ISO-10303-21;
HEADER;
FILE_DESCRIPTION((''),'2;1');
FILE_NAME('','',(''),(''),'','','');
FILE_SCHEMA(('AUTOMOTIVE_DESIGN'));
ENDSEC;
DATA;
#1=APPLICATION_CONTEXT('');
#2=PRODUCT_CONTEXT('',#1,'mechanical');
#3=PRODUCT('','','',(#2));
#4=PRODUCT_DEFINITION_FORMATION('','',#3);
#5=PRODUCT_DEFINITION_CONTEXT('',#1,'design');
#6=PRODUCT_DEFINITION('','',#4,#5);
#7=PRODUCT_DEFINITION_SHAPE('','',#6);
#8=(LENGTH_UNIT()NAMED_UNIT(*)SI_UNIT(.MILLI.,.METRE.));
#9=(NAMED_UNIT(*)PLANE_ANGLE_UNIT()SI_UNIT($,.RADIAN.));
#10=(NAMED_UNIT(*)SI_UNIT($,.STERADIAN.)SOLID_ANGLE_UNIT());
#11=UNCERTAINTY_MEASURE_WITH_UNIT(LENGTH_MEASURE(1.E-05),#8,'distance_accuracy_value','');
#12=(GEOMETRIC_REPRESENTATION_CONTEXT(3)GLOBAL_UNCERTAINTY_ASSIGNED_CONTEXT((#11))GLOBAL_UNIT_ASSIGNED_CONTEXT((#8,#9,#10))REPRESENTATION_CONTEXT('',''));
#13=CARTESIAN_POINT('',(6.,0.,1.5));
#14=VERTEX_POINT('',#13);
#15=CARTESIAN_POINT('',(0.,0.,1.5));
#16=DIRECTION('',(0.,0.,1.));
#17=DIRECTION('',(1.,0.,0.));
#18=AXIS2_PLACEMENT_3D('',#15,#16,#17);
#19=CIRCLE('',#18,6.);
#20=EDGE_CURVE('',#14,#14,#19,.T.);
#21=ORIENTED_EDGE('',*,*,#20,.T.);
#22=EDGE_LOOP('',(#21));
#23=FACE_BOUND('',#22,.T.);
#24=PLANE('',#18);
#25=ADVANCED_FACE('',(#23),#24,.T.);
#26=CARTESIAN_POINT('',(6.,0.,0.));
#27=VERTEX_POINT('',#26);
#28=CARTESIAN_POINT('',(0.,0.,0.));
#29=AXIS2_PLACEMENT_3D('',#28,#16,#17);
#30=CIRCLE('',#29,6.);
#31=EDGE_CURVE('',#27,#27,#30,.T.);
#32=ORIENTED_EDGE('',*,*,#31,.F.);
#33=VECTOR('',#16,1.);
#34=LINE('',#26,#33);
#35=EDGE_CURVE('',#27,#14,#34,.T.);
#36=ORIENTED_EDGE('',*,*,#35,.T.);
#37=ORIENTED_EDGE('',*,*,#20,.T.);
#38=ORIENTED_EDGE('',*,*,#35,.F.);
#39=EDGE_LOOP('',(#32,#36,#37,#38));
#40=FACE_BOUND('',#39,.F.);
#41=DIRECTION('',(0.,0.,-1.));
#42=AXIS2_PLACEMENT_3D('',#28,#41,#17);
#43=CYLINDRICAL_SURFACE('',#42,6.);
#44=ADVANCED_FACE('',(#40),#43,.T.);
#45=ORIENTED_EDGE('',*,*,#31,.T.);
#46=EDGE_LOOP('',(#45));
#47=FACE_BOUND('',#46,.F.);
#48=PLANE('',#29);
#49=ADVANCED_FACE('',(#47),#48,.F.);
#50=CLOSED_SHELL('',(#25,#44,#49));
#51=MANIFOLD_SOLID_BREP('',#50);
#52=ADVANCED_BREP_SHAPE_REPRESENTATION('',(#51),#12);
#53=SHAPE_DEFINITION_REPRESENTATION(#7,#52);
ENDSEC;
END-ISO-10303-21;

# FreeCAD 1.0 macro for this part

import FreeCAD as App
import Part
import Sketcher

doc = App.newDocument("Part")
body = doc.addObject("PartDesign::Body", "Body")

# Sketch on XY plane
sketch1 = doc.addObject("Sketcher::SketchObject", "Sketch")
body.addObject(sketch1)
sketch1.AttachmentSupport = (doc.XY_Plane, [""])
sketch1.MapMode = "FlatFace"
sketch1.addGeometry(Part.Circle(App.Vector(0, 0, 0), App.Vector(0, 0, 1), 6), False)
sketch1.addConstraint([
    Sketcher.Constraint("Coincident", 0, 3, -1, 1),
    Sketcher.Constraint("Diameter", 0, 12.0),
])
pad1 = doc.addObject("PartDesign::Pad", "Pad")
body.addObject(pad1)
pad1.Profile = sketch1
pad1.Length = 1.5

doc.recompute()
